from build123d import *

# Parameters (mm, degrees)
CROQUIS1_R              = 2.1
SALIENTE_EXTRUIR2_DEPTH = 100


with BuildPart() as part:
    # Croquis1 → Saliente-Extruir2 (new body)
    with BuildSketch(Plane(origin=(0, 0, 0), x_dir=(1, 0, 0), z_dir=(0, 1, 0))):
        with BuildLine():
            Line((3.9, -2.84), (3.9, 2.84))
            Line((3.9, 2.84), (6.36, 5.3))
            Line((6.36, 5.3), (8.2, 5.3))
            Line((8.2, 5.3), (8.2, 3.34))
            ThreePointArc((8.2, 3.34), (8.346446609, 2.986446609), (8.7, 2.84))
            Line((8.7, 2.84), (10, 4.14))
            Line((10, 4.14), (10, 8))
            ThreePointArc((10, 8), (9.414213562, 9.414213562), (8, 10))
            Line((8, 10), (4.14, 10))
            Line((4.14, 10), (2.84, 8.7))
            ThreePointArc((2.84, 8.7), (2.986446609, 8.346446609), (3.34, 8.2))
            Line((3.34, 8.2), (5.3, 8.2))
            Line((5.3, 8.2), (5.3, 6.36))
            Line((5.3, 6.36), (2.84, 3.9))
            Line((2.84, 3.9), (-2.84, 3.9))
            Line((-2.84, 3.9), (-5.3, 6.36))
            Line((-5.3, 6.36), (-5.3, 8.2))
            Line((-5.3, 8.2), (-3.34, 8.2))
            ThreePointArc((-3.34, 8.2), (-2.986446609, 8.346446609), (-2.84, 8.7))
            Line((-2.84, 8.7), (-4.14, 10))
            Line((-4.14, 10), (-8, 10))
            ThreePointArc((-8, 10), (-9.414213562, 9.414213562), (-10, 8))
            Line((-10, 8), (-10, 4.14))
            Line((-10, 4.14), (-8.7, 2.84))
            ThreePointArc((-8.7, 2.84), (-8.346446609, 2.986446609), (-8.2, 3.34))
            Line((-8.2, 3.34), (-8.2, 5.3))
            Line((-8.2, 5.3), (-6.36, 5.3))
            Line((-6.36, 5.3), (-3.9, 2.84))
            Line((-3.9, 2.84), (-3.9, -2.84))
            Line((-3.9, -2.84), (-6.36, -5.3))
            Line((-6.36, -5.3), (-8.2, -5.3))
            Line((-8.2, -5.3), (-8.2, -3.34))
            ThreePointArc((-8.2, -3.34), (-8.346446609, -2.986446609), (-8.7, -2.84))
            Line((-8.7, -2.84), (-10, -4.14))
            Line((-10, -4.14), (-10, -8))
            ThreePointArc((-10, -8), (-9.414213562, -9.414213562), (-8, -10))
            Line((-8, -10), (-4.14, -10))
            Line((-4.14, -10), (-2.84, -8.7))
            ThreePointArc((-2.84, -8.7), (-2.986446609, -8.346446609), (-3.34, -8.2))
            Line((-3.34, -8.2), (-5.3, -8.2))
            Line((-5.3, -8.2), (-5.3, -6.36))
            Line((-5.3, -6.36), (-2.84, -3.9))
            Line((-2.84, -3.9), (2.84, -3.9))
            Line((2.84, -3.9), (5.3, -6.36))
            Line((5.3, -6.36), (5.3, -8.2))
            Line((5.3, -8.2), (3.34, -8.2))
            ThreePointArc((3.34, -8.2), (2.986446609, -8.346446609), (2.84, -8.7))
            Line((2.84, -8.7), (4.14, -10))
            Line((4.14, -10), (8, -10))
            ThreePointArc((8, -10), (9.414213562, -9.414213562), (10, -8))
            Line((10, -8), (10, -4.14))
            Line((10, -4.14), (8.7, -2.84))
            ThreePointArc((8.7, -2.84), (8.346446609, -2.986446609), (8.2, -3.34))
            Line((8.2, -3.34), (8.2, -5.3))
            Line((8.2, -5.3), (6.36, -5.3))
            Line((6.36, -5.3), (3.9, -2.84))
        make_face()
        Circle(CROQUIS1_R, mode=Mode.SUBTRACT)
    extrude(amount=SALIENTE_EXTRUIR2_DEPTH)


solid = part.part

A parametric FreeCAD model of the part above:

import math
import FreeCAD as App
import Part
import Sketcher

doc = App.newDocument("Part")
body = doc.addObject("PartDesign::Body", "Body")

sketch1 = body.newObject("Sketcher::SketchObject", "Sketch")
sketch1.AttachmentSupport = (doc.getObject("XZ_Plane"), [""])
sketch1.MapMode = "FlatFace"
sketch1.addGeometry(Part.LineSegment(App.Vector(3.9, 2.84, 0), App.Vector(3.9, -2.84, 0)), False)
sketch1.addGeometry(Part.LineSegment(App.Vector(3.9, -2.84, 0), App.Vector(6.36, -5.3, 0)), False)
sketch1.addGeometry(Part.LineSegment(App.Vector(6.36, -5.3, 0), App.Vector(8.2, -5.3, 0)), False)
sketch1.addGeometry(Part.LineSegment(App.Vector(8.2, -5.3, 0), App.Vector(8.2, -3.34, 0)), False)
sketch1.addGeometry(Part.ArcOfCircle(Part.Circle(App.Vector(8.7, -3.34, 0), App.Vector(0, 0, 1), 0.5), math.radians(90), math.radians(180)), False)
sketch1.addGeometry(Part.LineSegment(App.Vector(8.7, -2.84, 0), App.Vector(10, -4.14, 0)), False)
sketch1.addGeometry(Part.LineSegment(App.Vector(10, -4.14, 0), App.Vector(10, -8, 0)), False)
sketch1.addGeometry(Part.ArcOfCircle(Part.Circle(App.Vector(8, -8, 0), App.Vector(0, 0, 1), 2), math.radians(-90), math.radians(0)), False)
sketch1.addGeometry(Part.LineSegment(App.Vector(8, -10, 0), App.Vector(4.14, -10, 0)), False)
sketch1.addGeometry(Part.LineSegment(App.Vector(4.14, -10, 0), App.Vector(2.84, -8.7, 0)), False)
sketch1.addGeometry(Part.ArcOfCircle(Part.Circle(App.Vector(3.34, -8.7, 0), App.Vector(0, 0, 1), 0.5), math.radians(90), math.radians(180)), False)
sketch1.addGeometry(Part.LineSegment(App.Vector(3.34, -8.2, 0), App.Vector(5.3, -8.2, 0)), False)
sketch1.addGeometry(Part.LineSegment(App.Vector(5.3, -8.2, 0), App.Vector(5.3, -6.36, 0)), False)
sketch1.addGeometry(Part.LineSegment(App.Vector(5.3, -6.36, 0), App.Vector(2.84, -3.9, 0)), False)
sketch1.addGeometry(Part.LineSegment(App.Vector(2.84, -3.9, 0), App.Vector(-2.84, -3.9, 0)), False)
sketch1.addGeometry(Part.LineSegment(App.Vector(-2.84, -3.9, 0), App.Vector(-5.3, -6.36, 0)), False)
sketch1.addGeometry(Part.LineSegment(App.Vector(-5.3, -6.36, 0), App.Vector(-5.3, -8.2, 0)), False)
sketch1.addGeometry(Part.LineSegment(App.Vector(-5.3, -8.2, 0), App.Vector(-3.34, -8.2, 0)), False)
sketch1.addGeometry(Part.ArcOfCircle(Part.Circle(App.Vector(-3.34, -8.7, 0), App.Vector(0, 0, 1), 0.5), math.radians(0), math.radians(90)), False)
sketch1.addGeometry(Part.LineSegment(App.Vector(-2.84, -8.7, 0), App.Vector(-4.14, -10, 0)), False)
sketch1.addGeometry(Part.LineSegment(App.Vector(-4.14, -10, 0), App.Vector(-8, -10, 0)), False)
sketch1.addGeometry(Part.ArcOfCircle(Part.Circle(App.Vector(-8, -8, 0), App.Vector(0, 0, 1), 2), math.radians(-180), math.radians(-90)), False)
sketch1.addGeometry(Part.LineSegment(App.Vector(-10, -8, 0), App.Vector(-10, -4.14, 0)), False)
sketch1.addGeometry(Part.LineSegment(App.Vector(-10, -4.14, 0), App.Vector(-8.7, -2.84, 0)), False)
sketch1.addGeometry(Part.ArcOfCircle(Part.Circle(App.Vector(-8.7, -3.34, 0), App.Vector(0, 0, 1), 0.5), math.radians(0), math.radians(90)), False)
sketch1.addGeometry(Part.LineSegment(App.Vector(-8.2, -3.34, 0), App.Vector(-8.2, -5.3, 0)), False)
sketch1.addGeometry(Part.LineSegment(App.Vector(-8.2, -5.3, 0), App.Vector(-6.36, -5.3, 0)), False)
sketch1.addGeometry(Part.LineSegment(App.Vector(-6.36, -5.3, 0), App.Vector(-3.9, -2.84, 0)), False)
sketch1.addGeometry(Part.LineSegment(App.Vector(-3.9, -2.84, 0), App.Vector(-3.9, 2.84, 0)), False)
sketch1.addGeometry(Part.LineSegment(App.Vector(-3.9, 2.84, 0), App.Vector(-6.36, 5.3, 0)), False)
sketch1.addGeometry(Part.LineSegment(App.Vector(-6.36, 5.3, 0), App.Vector(-8.2, 5.3, 0)), False)
sketch1.addGeometry(Part.LineSegment(App.Vector(-8.2, 5.3, 0), App.Vector(-8.2, 3.34, 0)), False)
sketch1.addGeometry(Part.ArcOfCircle(Part.Circle(App.Vector(-8.7, 3.34, 0), App.Vector(0, 0, 1), 0.5), math.radians(-90), math.radians(0)), False)
sketch1.addGeometry(Part.LineSegment(App.Vector(-8.7, 2.84, 0), App.Vector(-10, 4.14, 0)), False)
sketch1.addGeometry(Part.LineSegment(App.Vector(-10, 4.14, 0), App.Vector(-10, 8, 0)), False)
sketch1.addGeometry(Part.ArcOfCircle(Part.Circle(App.Vector(-8, 8, 0), App.Vector(0, 0, 1), 2), math.radians(90), math.radians(180)), False)
sketch1.addGeometry(Part.LineSegment(App.Vector(-8, 10, 0), App.Vector(-4.14, 10, 0)), False)
sketch1.addGeometry(Part.LineSegment(App.Vector(-4.14, 10, 0), App.Vector(-2.84, 8.7, 0)), False)
sketch1.addGeometry(Part.ArcOfCircle(Part.Circle(App.Vector(-3.34, 8.7, 0), App.Vector(0, 0, 1), 0.5), math.radians(-90), math.radians(0)), False)
sketch1.addGeometry(Part.LineSegment(App.Vector(-3.34, 8.2, 0), App.Vector(-5.3, 8.2, 0)), False)
sketch1.addGeometry(Part.LineSegment(App.Vector(-5.3, 8.2, 0), App.Vector(-5.3, 6.36, 0)), False)
sketch1.addGeometry(Part.LineSegment(App.Vector(-5.3, 6.36, 0), App.Vector(-2.84, 3.9, 0)), False)
sketch1.addGeometry(Part.LineSegment(App.Vector(-2.84, 3.9, 0), App.Vector(2.84, 3.9, 0)), False)
sketch1.addGeometry(Part.LineSegment(App.Vector(2.84, 3.9, 0), App.Vector(5.3, 6.36, 0)), False)
sketch1.addGeometry(Part.LineSegment(App.Vector(5.3, 6.36, 0), App.Vector(5.3, 8.2, 0)), False)
sketch1.addGeometry(Part.LineSegment(App.Vector(5.3, 8.2, 0), App.Vector(3.34, 8.2, 0)), False)
sketch1.addGeometry(Part.ArcOfCircle(Part.Circle(App.Vector(3.34, 8.7, 0), App.Vector(0, 0, 1), 0.5), math.radians(180), math.radians(270)), False)
sketch1.addGeometry(Part.LineSegment(App.Vector(2.84, 8.7, 0), App.Vector(4.14, 10, 0)), False)
sketch1.addGeometry(Part.LineSegment(App.Vector(4.14, 10, 0), App.Vector(8, 10, 0)), False)
sketch1.addGeometry(Part.ArcOfCircle(Part.Circle(App.Vector(8, 8, 0), App.Vector(0, 0, 1), 2), math.radians(0), math.radians(90)), False)
sketch1.addGeometry(Part.LineSegment(App.Vector(10, 8, 0), App.Vector(10, 4.14, 0)), False)
sketch1.addGeometry(Part.LineSegment(App.Vector(10, 4.14, 0), App.Vector(8.7, 2.84, 0)), False)
sketch1.addGeometry(Part.ArcOfCircle(Part.Circle(App.Vector(8.7, 3.34, 0), App.Vector(0, 0, 1), 0.5), math.radians(180), math.radians(270)), False)
sketch1.addGeometry(Part.LineSegment(App.Vector(8.2, 3.34, 0), App.Vector(8.2, 5.3, 0)), False)
sketch1.addGeometry(Part.LineSegment(App.Vector(8.2, 5.3, 0), App.Vector(6.36, 5.3, 0)), False)
sketch1.addGeometry(Part.LineSegment(App.Vector(6.36, 5.3, 0), App.Vector(3.9, 2.84, 0)), False)
sketch1.addGeometry(Part.Circle(App.Vector(0, 0, 0), App.Vector(0, 0, 1), 2.1), False)
sketch1.addConstraint(Sketcher.Constraint("Coincident", 0, 2, 1, 1))
sketch1.addConstraint(Sketcher.Constraint("Coincident", 1, 2, 2, 1))
sketch1.addConstraint(Sketcher.Constraint("Coincident", 2, 2, 3, 1))
sketch1.addConstraint(Sketcher.Constraint("Tangent", 3, 2, 4, 2))
sketch1.addConstraint(Sketcher.Constraint("Coincident", 4, 1, 5, 1))
sketch1.addConstraint(Sketcher.Constraint("Coincident", 5, 2, 6, 1))
sketch1.addConstraint(Sketcher.Constraint("Tangent", 6, 2, 7, 2))
sketch1.addConstraint(Sketcher.Constraint("Tangent", 7, 1, 8, 1))
sketch1.addConstraint(Sketcher.Constraint("Coincident", 8, 2, 9, 1))
sketch1.addConstraint(Sketcher.Constraint("Coincident", 9, 2, 10, 2))
sketch1.addConstraint(Sketcher.Constraint("Tangent", 10, 1, 11, 1))
sketch1.addConstraint(Sketcher.Constraint("Coincident", 11, 2, 12, 1))
sketch1.addConstraint(Sketcher.Constraint("Coincident", 12, 2, 13, 1))
sketch1.addConstraint(Sketcher.Constraint("Coincident", 13, 2, 14, 1))
sketch1.addConstraint(Sketcher.Constraint("Coincident", 14, 2, 15, 1))
sketch1.addConstraint(Sketcher.Constraint("Coincident", 15, 2, 16, 1))
sketch1.addConstraint(Sketcher.Constraint("Coincident", 16, 2, 17, 1))
sketch1.addConstraint(Sketcher.Constraint("Tangent", 17, 2, 18, 2))
sketch1.addConstraint(Sketcher.Constraint("Coincident", 18, 1, 19, 1))
sketch1.addConstraint(Sketcher.Constraint("Coincident", 19, 2, 20, 1))
sketch1.addConstraint(Sketcher.Constraint("Tangent", 20, 2, 21, 2))
sketch1.addConstraint(Sketcher.Constraint("Tangent", 21, 1, 22, 1))
sketch1.addConstraint(Sketcher.Constraint("Coincident", 22, 2, 23, 1))
sketch1.addConstraint(Sketcher.Constraint("Coincident", 23, 2, 24, 2))
sketch1.addConstraint(Sketcher.Constraint("Tangent", 24, 1, 25, 1))
sketch1.addConstraint(Sketcher.Constraint("Coincident", 25, 2, 26, 1))
sketch1.addConstraint(Sketcher.Constraint("Coincident", 26, 2, 27, 1))
sketch1.addConstraint(Sketcher.Constraint("Coincident", 27, 2, 28, 1))
sketch1.addConstraint(Sketcher.Constraint("Coincident", 28, 2, 29, 1))
sketch1.addConstraint(Sketcher.Constraint("Coincident", 29, 2, 30, 1))
sketch1.addConstraint(Sketcher.Constraint("Coincident", 30, 2, 31, 1))
sketch1.addConstraint(Sketcher.Constraint("Tangent", 31, 2, 32, 2))
sketch1.addConstraint(Sketcher.Constraint("Coincident", 32, 1, 33, 1))
sketch1.addConstraint(Sketcher.Constraint("Coincident", 33, 2, 34, 1))
sketch1.addConstraint(Sketcher.Constraint("Tangent", 34, 2, 35, 2))
sketch1.addConstraint(Sketcher.Constraint("Tangent", 35, 1, 36, 1))
sketch1.addConstraint(Sketcher.Constraint("Coincident", 36, 2, 37, 1))
sketch1.addConstraint(Sketcher.Constraint("Coincident", 37, 2, 38, 2))
sketch1.addConstraint(Sketcher.Constraint("Tangent", 38, 1, 39, 1))
sketch1.addConstraint(Sketcher.Constraint("Coincident", 39, 2, 40, 1))
sketch1.addConstraint(Sketcher.Constraint("Coincident", 40, 2, 41, 1))
sketch1.addConstraint(Sketcher.Constraint("Coincident", 41, 2, 42, 1))
sketch1.addConstraint(Sketcher.Constraint("Coincident", 42, 2, 43, 1))
sketch1.addConstraint(Sketcher.Constraint("Coincident", 43, 2, 44, 1))
sketch1.addConstraint(Sketcher.Constraint("Coincident", 44, 2, 45, 1))
sketch1.addConstraint(Sketcher.Constraint("Tangent", 45, 2, 46, 2))
sketch1.addConstraint(Sketcher.Constraint("Coincident", 46, 1, 47, 1))
sketch1.addConstraint(Sketcher.Constraint("Coincident", 47, 2, 48, 1))
sketch1.addConstraint(Sketcher.Constraint("Tangent", 48, 2, 49, 2))
sketch1.addConstraint(Sketcher.Constraint("Tangent", 49, 1, 50, 1))
sketch1.addConstraint(Sketcher.Constraint("Coincident", 50, 2, 51, 1))
sketch1.addConstraint(Sketcher.Constraint("Coincident", 51, 2, 52, 2))
sketch1.addConstraint(Sketcher.Constraint("Tangent", 52, 1, 53, 1))
sketch1.addConstraint(Sketcher.Constraint("Coincident", 53, 2, 54, 1))
sketch1.addConstraint(Sketcher.Constraint("Coincident", 54, 2, 55, 1))
sketch1.addConstraint(Sketcher.Constraint("Coincident", 55, 2, 0, 1))
sketch1.addConstraint(Sketcher.Constraint("Vertical", 0))
sketch1.addConstraint(Sketcher.Constraint("Horizontal", 2))
sketch1.addConstraint(Sketcher.Constraint("Vertical", 3))
sketch1.addConstraint(Sketcher.Constraint("Vertical", 6))
sketch1.addConstraint(Sketcher.Constraint("Horizontal", 8))
sketch1.addConstraint(Sketcher.Constraint("Horizontal", 11))
sketch1.addConstraint(Sketcher.Constraint("Vertical", 12))
sketch1.addConstraint(Sketcher.Constraint("Horizontal", 14))
sketch1.addConstraint(Sketcher.Constraint("Vertical", 16))
sketch1.addConstraint(Sketcher.Constraint("Horizontal", 17))
sketch1.addConstraint(Sketcher.Constraint("Horizontal", 20))
sketch1.addConstraint(Sketcher.Constraint("Vertical", 22))
sketch1.addConstraint(Sketcher.Constraint("Vertical", 25))
sketch1.addConstraint(Sketcher.Constraint("Horizontal", 26))
sketch1.addConstraint(Sketcher.Constraint("Vertical", 28))
sketch1.addConstraint(Sketcher.Constraint("Horizontal", 30))
sketch1.addConstraint(Sketcher.Constraint("Vertical", 31))
sketch1.addConstraint(Sketcher.Constraint("Vertical", 34))
sketch1.addConstraint(Sketcher.Constraint("Horizontal", 36))
sketch1.addConstraint(Sketcher.Constraint("Horizontal", 39))
sketch1.addConstraint(Sketcher.Constraint("Vertical", 40))
sketch1.addConstraint(Sketcher.Constraint("Horizontal", 42))
sketch1.addConstraint(Sketcher.Constraint("Vertical", 44))
sketch1.addConstraint(Sketcher.Constraint("Horizontal", 45))
sketch1.addConstraint(Sketcher.Constraint("Horizontal", 48))
sketch1.addConstraint(Sketcher.Constraint("Vertical", 50))
sketch1.addConstraint(Sketcher.Constraint("Vertical", 53))
sketch1.addConstraint(Sketcher.Constraint("Horizontal", 54))
sketch1.addConstraint(Sketcher.Constraint("Coincident", 56, 3, -1, 1))
sketch1.addConstraint(Sketcher.Constraint("Equal", 4, 10))
sketch1.addConstraint(Sketcher.Constraint("Equal", 10, 18))
sketch1.addConstraint(Sketcher.Constraint("Equal", 7, 21))
sketch1.addConstraint(Sketcher.Constraint("Equal", 18, 24))
sketch1.addConstraint(Sketcher.Constraint("Equal", 24, 32))
sketch1.addConstraint(Sketcher.Constraint("Equal", 21, 35))
sketch1.addConstraint(Sketcher.Constraint("Equal", 32, 38))
sketch1.addConstraint(Sketcher.Constraint("Equal", 38, 46))
sketch1.addConstraint(Sketcher.Constraint("Equal", 35, 49))
sketch1.addConstraint(Sketcher.Constraint("Equal", 46, 52))
sketch1.addConstraint(Sketcher.Constraint("Symmetric", 4, 3, 32, 3, -1, 1))
sketch1.addConstraint(Sketcher.Constraint("Symmetric", 7, 3, 35, 3, -1, 1))
sketch1.addConstraint(Sketcher.Constraint("Symmetric", 10, 3, 38, 3, -1, 1))
sketch1.addConstraint(Sketcher.Constraint("Symmetric", 18, 3, 46, 3, -1, 1))
sketch1.addConstraint(Sketcher.Constraint("Symmetric", 21, 3, 49, 3, -1, 1))
sketch1.addConstraint(Sketcher.Constraint("Symmetric", 24, 3, 52, 3, -1, 1))
sketch1.addConstraint(Sketcher.Constraint("Symmetric", 0, 2, 28, 2, -1, 1))
sketch1.addConstraint(Sketcher.Constraint("Symmetric", 1, 2, 29, 2, -1, 1))
sketch1.addConstraint(Sketcher.Constraint("Symmetric", 12, 2, 40, 2, -1, 1))
sketch1.addConstraint(Sketcher.Constraint("Symmetric", 13, 2, 41, 2, -1, 1))
sketch1.addConstraint(Sketcher.Constraint("Symmetric", 15, 2, 43, 2, -1, 1))
sketch1.addConstraint(Sketcher.Constraint("Symmetric", 26, 2, 54, 2, -1, 1))
sketch1.addConstraint(Sketcher.Constraint("Symmetric", 10, 3, 18, 3, -2))
sketch1.addConstraint(Sketcher.Constraint("Symmetric", 7, 3, 21, 3, -2))
sketch1.addConstraint(Sketcher.Constraint("Symmetric", 4, 3, 24, 3, -2))
sketch1.addConstraint(Sketcher.Constraint("Symmetric", 12, 2, 15, 2, -2))
sketch1.addConstraint(Sketcher.Constraint("Symmetric", 1, 2, 26, 2, -2))
sketch1.addConstraint(Sketcher.Constraint("Parallel", 1, 5))
sketch1.addConstraint(Sketcher.Constraint("Parallel", 5, 9))
sketch1.addConstraint(Sketcher.Constraint("Parallel", 9, 13))
sketch1.addConstraint(Sketcher.Constraint("Perpendicular", 13, 15))
sketch1.addConstraint(Sketcher.Constraint("Parallel", 15, 19))
sketch1.addConstraint(Sketcher.Constraint("Parallel", 19, 23))
sketch1.addConstraint(Sketcher.Constraint("Parallel", 23, 27))
sketch1.addConstraint(Sketcher.Constraint("Parallel", 29, 33))
sketch1.addConstraint(Sketcher.Constraint("Parallel", 33, 37))
sketch1.addConstraint(Sketcher.Constraint("Perpendicular", 41, 43))
sketch1.addConstraint(Sketcher.Constraint("Parallel", 43, 47))
sketch1.addConstraint(Sketcher.Constraint("Parallel", 47, 51))
sketch1.addConstraint(Sketcher.Constraint("Parallel", 51, 55))
sketch1.addConstraint(Sketcher.Constraint("Horizontal", 0, 2, 4, 1))
sketch1.addConstraint(Sketcher.Constraint("Horizontal", 18, 3, 9, 2))
sketch1.addConstraint(Sketcher.Constraint("Horizontal", 9, 2, 18, 1))
sketch1.addConstraint(Sketcher.Constraint("Horizontal", 5, 2, 22, 2))
sketch1.addConstraint(Sketcher.Constraint("Horizontal", 23, 2, 27, 2))
sketch1.addConstraint(Sketcher.Constraint("Horizontal", 46, 3, 37, 2))
sketch1.addConstraint(Sketcher.Constraint("Horizontal", 37, 2, 46, 1))
sketch1.addConstraint(Sketcher.Constraint("Horizontal", 33, 2, 50, 2))
sketch1.addConstraint(Sketcher.Constraint("Vertical", 52, 3, 4, 1))
sketch1.addConstraint(Sketcher.Constraint("Vertical", 9, 2, 13, 2))
sketch1.addConstraint(Sketcher.Constraint("Vertical", 23, 2, 32, 1))
sketch1.addConstraint(Sketcher.Constraint("Equal", 42, 0))
sketch1.addConstraint(Sketcher.Constraint("Equal", 45, 3))
sketch1.addConstraint(Sketcher.Constraint("Equal", 48, 6))
sketch1.addConstraint(Sketcher.Constraint("Equal", 54, 12))
sketch1.addConstraint(Sketcher.Constraint("Equal", 5, 9))
sketch1.addConstraint(Sketcher.Constraint("Radius", 7, 2.0))
sketch1.addConstraint(Sketcher.Constraint("Diameter", 56, 4.2))
sketch1.addConstraint(Sketcher.Constraint("Radius", 4, 0.5))
sketch1.addConstraint(Sketcher.Constraint("DistanceX", -1, 1, 7, 3, 8.0))
sketch1.addConstraint(Sketcher.Constraint("DistanceX", 2, 1, 2, 2, 1.84))
sketch1.addConstraint(Sketcher.Constraint("DistanceX", 8, 2, 8, 1, 3.86))
sketch1.addConstraint(Sketcher.Constraint("DistanceX", 11, 1, 11, 2, 1.96))
sketch1.addConstraint(Sketcher.Constraint("DistanceX", 14, 2, 14, 1, 5.68))
pad1 = body.newObject("PartDesign::Pad", "Pad")
pad1.Profile = sketch1
pad1.Length = 100
pad1.Reversed = True

doc.recompute()
